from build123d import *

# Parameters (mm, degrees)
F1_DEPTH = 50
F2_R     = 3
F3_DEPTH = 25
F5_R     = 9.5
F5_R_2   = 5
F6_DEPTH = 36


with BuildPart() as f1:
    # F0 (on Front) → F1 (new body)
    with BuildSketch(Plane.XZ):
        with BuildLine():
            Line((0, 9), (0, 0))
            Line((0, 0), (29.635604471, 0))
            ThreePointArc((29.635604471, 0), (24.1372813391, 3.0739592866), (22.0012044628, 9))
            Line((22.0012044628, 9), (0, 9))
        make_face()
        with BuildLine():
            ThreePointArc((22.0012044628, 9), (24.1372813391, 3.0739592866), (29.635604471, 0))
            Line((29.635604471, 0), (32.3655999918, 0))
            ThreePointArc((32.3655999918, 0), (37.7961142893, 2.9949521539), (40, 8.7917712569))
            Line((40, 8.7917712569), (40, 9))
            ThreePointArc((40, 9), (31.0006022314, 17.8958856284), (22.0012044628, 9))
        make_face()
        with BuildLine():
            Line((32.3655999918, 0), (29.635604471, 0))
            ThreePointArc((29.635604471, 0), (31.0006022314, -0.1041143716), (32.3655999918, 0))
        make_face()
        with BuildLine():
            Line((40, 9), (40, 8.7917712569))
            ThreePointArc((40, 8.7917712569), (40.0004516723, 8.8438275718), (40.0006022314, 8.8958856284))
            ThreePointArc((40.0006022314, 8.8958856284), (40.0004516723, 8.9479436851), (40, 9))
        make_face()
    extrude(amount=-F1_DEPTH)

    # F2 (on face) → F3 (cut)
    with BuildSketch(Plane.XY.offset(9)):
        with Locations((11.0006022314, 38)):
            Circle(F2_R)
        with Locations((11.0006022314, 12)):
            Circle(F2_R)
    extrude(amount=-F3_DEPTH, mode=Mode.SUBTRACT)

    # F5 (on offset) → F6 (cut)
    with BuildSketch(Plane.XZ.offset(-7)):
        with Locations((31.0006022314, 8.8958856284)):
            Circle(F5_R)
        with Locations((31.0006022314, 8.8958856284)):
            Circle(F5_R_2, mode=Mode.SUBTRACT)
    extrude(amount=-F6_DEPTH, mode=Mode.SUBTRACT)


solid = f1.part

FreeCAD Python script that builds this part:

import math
import FreeCAD as App
import Part
import Sketcher

doc = App.newDocument("Part")
params = doc.addObject("Spreadsheet::Sheet", "Params")
for row, (alias, value) in enumerate([
    ("sketch1_radius", "9 mm"),
    ("sketch1_height", "9 mm"),
    ("pad1_length", "50 mm"),
    ("sketch2_diameter", "6 mm"),
    ("pocket1_length", "25 mm"),
    ("sketch3_diameter", "19 mm"),
    ("sketch3_diameter2", "10 mm"),
    ("pocket2_length", "36 mm"),
], start=1):
    params.set(f"A{row}", alias)
    params.set(f"B{row}", "=" + value)
    params.setAlias(f"B{row}", alias)

body = doc.addObject("PartDesign::Body", "Body")

# Sketch on XZ plane
sketch1 = body.newObject("Sketcher::SketchObject", "Sketch")
sketch1.AttachmentSupport = (doc.getObject("XZ_Plane"), [""])
sketch1.MapMode = "FlatFace"
sketch1.addGeometry([
    Part.LineSegment(App.Vector(0, 9, 0), App.Vector(0, 0, 0)),  # 0
    Part.LineSegment(App.Vector(0, 0, 0), App.Vector(29.64, 0, 0)),  # 1
    Part.ArcOfCircle(Part.Circle(App.Vector(31, 8.9, 0), App.Vector(0, 0, 1), 9), math.radians(-98.72), math.radians(-81.28)),  # 2
    Part.ArcOfCircle(Part.Circle(App.Vector(31, 8.9, 0), App.Vector(0, 0, 1), 9), math.radians(-81), math.radians(-1)),  # 3
    Part.ArcOfCircle(Part.Circle(App.Vector(31, 8.9, 0), App.Vector(0, 0, 1), 9), math.radians(-0.66), math.radians(0)),  # 4
    Part.ArcOfCircle(Part.Circle(App.Vector(31, 8.9, 0), App.Vector(0, 0, 1), 9), math.radians(0), math.radians(0.66)),  # 5
    Part.ArcOfCircle(Part.Circle(App.Vector(31, 8.9, 0), App.Vector(0, 0, 1), 9), math.radians(1), math.radians(179)),  # 6
    Part.LineSegment(App.Vector(22, 9, 0), App.Vector(0, 9, 0)),  # 7
], False)
sketch1.addConstraint([
    Sketcher.Constraint("Coincident", 0, 2, 1, 1),
    Sketcher.Constraint("Coincident", 1, 2, 2, 1),
    Sketcher.Constraint("Tangent", 2, 2, 3, 1),
    Sketcher.Constraint("Tangent", 3, 2, 4, 1),
    Sketcher.Constraint("Tangent", 4, 2, 5, 1),
    Sketcher.Constraint("Tangent", 5, 2, 6, 1),
    Sketcher.Constraint("Coincident", 6, 2, 7, 1),
    Sketcher.Constraint("Coincident", 7, 2, 0, 1),
    Sketcher.Constraint("Vertical", 0),
    Sketcher.Constraint("Horizontal", 1),
    Sketcher.Constraint("Horizontal", 7),
    Sketcher.Constraint("Coincident", 0, 2, -1, 1),
    Sketcher.Constraint("Coincident", 4, 3, 2, 3),
    Sketcher.Constraint("Coincident", 6, 3, 2, 3),
    Sketcher.Constraint("PointOnObject", 2, 2, -1),
    Sketcher.Constraint("Horizontal", 6, 3, 4, 2),
    Sketcher.Constraint("Horizontal", 5, 2, 6, 2),
    Sketcher.Constraint("Vertical", 3, 2, 5, 2),
    Sketcher.Constraint("Radius", 2, 9.0),
    Sketcher.Constraint("DistanceY", 0, 2, 0, 1, 9.0),
    Sketcher.Constraint("DistanceX", -1, 1, 3, 2, 40.0),
    Sketcher.Constraint("DistanceX", 1, 2, 4, 3, 1.364998),
])
sketch1.setExpression("Constraints[18]", "Params.sketch1_radius")
sketch1.setExpression("Constraints[19]", "Params.sketch1_height")
pad1 = body.newObject("PartDesign::Pad", "Pad")
pad1.Profile = sketch1
pad1.setExpression("Length", "Params.pad1_length")
pad1.Reversed = True

# Sketch on XY plane
sketch2 = body.newObject("Sketcher::SketchObject", "Sketch001")
sketch2.AttachmentSupport = (doc.getObject("XY_Plane"), [""])
sketch2.MapMode = "FlatFace"
sketch2.AttachmentOffset = App.Placement(App.Vector(0, 0, 9), App.Rotation())
sketch2.addGeometry([
    Part.Circle(App.Vector(11, 38, 0), App.Vector(0, 0, 1), 3),
    Part.Circle(App.Vector(11, 12, 0), App.Vector(0, 0, 1), 3),
], False)
sketch2.addConstraint([
    Sketcher.Constraint("Equal", 0, 1),
    Sketcher.Constraint("Vertical", 0, 3, 1, 3),
    Sketcher.Constraint("Diameter", 0, 6.0),
    Sketcher.Constraint("DistanceY", -1, 1, 0, 3, 38.0),
    Sketcher.Constraint("DistanceY", -1, 1, 1, 3, 12.0),
    Sketcher.Constraint("DistanceX", -1, 1, 0, 3, 11.000602),
])
sketch2.setExpression("Constraints[2]", "Params.sketch2_diameter")
pocket1 = body.newObject("PartDesign::Pocket", "Pocket")
pocket1.Profile = sketch2
pocket1.setExpression("Length", "Params.pocket1_length")

# Sketch on XZ plane
sketch3 = body.newObject("Sketcher::SketchObject", "Sketch002")
sketch3.AttachmentSupport = (doc.getObject("XZ_Plane"), [""])
sketch3.MapMode = "FlatFace"
sketch3.AttachmentOffset = App.Placement(App.Vector(0, 0, -7), App.Rotation())
sketch3.addGeometry([
    Part.Circle(App.Vector(31, 9, 0), App.Vector(0, 0, 1), 10),
    Part.Circle(App.Vector(31, 9, 0), App.Vector(0, 0, 1), 5),
], False)
sketch3.addConstraint([
    Sketcher.Constraint("Coincident", 1, 3, 0, 3),
    Sketcher.Constraint("Diameter", 0, 19.0),
    Sketcher.Constraint("Diameter", 1, 10.0),
    Sketcher.Constraint("DistanceX", -1, 1, 0, 3, 31.000602),
    Sketcher.Constraint("DistanceY", -1, 1, 0, 3, 8.895886),
])
sketch3.setExpression("Constraints[1]", "Params.sketch3_diameter")
sketch3.setExpression("Constraints[2]", "Params.sketch3_diameter2")
pocket2 = body.newObject("PartDesign::Pocket", "Pocket001")
pocket2.Profile = sketch3
pocket2.setExpression("Length", "Params.pocket2_length")

doc.recompute()
